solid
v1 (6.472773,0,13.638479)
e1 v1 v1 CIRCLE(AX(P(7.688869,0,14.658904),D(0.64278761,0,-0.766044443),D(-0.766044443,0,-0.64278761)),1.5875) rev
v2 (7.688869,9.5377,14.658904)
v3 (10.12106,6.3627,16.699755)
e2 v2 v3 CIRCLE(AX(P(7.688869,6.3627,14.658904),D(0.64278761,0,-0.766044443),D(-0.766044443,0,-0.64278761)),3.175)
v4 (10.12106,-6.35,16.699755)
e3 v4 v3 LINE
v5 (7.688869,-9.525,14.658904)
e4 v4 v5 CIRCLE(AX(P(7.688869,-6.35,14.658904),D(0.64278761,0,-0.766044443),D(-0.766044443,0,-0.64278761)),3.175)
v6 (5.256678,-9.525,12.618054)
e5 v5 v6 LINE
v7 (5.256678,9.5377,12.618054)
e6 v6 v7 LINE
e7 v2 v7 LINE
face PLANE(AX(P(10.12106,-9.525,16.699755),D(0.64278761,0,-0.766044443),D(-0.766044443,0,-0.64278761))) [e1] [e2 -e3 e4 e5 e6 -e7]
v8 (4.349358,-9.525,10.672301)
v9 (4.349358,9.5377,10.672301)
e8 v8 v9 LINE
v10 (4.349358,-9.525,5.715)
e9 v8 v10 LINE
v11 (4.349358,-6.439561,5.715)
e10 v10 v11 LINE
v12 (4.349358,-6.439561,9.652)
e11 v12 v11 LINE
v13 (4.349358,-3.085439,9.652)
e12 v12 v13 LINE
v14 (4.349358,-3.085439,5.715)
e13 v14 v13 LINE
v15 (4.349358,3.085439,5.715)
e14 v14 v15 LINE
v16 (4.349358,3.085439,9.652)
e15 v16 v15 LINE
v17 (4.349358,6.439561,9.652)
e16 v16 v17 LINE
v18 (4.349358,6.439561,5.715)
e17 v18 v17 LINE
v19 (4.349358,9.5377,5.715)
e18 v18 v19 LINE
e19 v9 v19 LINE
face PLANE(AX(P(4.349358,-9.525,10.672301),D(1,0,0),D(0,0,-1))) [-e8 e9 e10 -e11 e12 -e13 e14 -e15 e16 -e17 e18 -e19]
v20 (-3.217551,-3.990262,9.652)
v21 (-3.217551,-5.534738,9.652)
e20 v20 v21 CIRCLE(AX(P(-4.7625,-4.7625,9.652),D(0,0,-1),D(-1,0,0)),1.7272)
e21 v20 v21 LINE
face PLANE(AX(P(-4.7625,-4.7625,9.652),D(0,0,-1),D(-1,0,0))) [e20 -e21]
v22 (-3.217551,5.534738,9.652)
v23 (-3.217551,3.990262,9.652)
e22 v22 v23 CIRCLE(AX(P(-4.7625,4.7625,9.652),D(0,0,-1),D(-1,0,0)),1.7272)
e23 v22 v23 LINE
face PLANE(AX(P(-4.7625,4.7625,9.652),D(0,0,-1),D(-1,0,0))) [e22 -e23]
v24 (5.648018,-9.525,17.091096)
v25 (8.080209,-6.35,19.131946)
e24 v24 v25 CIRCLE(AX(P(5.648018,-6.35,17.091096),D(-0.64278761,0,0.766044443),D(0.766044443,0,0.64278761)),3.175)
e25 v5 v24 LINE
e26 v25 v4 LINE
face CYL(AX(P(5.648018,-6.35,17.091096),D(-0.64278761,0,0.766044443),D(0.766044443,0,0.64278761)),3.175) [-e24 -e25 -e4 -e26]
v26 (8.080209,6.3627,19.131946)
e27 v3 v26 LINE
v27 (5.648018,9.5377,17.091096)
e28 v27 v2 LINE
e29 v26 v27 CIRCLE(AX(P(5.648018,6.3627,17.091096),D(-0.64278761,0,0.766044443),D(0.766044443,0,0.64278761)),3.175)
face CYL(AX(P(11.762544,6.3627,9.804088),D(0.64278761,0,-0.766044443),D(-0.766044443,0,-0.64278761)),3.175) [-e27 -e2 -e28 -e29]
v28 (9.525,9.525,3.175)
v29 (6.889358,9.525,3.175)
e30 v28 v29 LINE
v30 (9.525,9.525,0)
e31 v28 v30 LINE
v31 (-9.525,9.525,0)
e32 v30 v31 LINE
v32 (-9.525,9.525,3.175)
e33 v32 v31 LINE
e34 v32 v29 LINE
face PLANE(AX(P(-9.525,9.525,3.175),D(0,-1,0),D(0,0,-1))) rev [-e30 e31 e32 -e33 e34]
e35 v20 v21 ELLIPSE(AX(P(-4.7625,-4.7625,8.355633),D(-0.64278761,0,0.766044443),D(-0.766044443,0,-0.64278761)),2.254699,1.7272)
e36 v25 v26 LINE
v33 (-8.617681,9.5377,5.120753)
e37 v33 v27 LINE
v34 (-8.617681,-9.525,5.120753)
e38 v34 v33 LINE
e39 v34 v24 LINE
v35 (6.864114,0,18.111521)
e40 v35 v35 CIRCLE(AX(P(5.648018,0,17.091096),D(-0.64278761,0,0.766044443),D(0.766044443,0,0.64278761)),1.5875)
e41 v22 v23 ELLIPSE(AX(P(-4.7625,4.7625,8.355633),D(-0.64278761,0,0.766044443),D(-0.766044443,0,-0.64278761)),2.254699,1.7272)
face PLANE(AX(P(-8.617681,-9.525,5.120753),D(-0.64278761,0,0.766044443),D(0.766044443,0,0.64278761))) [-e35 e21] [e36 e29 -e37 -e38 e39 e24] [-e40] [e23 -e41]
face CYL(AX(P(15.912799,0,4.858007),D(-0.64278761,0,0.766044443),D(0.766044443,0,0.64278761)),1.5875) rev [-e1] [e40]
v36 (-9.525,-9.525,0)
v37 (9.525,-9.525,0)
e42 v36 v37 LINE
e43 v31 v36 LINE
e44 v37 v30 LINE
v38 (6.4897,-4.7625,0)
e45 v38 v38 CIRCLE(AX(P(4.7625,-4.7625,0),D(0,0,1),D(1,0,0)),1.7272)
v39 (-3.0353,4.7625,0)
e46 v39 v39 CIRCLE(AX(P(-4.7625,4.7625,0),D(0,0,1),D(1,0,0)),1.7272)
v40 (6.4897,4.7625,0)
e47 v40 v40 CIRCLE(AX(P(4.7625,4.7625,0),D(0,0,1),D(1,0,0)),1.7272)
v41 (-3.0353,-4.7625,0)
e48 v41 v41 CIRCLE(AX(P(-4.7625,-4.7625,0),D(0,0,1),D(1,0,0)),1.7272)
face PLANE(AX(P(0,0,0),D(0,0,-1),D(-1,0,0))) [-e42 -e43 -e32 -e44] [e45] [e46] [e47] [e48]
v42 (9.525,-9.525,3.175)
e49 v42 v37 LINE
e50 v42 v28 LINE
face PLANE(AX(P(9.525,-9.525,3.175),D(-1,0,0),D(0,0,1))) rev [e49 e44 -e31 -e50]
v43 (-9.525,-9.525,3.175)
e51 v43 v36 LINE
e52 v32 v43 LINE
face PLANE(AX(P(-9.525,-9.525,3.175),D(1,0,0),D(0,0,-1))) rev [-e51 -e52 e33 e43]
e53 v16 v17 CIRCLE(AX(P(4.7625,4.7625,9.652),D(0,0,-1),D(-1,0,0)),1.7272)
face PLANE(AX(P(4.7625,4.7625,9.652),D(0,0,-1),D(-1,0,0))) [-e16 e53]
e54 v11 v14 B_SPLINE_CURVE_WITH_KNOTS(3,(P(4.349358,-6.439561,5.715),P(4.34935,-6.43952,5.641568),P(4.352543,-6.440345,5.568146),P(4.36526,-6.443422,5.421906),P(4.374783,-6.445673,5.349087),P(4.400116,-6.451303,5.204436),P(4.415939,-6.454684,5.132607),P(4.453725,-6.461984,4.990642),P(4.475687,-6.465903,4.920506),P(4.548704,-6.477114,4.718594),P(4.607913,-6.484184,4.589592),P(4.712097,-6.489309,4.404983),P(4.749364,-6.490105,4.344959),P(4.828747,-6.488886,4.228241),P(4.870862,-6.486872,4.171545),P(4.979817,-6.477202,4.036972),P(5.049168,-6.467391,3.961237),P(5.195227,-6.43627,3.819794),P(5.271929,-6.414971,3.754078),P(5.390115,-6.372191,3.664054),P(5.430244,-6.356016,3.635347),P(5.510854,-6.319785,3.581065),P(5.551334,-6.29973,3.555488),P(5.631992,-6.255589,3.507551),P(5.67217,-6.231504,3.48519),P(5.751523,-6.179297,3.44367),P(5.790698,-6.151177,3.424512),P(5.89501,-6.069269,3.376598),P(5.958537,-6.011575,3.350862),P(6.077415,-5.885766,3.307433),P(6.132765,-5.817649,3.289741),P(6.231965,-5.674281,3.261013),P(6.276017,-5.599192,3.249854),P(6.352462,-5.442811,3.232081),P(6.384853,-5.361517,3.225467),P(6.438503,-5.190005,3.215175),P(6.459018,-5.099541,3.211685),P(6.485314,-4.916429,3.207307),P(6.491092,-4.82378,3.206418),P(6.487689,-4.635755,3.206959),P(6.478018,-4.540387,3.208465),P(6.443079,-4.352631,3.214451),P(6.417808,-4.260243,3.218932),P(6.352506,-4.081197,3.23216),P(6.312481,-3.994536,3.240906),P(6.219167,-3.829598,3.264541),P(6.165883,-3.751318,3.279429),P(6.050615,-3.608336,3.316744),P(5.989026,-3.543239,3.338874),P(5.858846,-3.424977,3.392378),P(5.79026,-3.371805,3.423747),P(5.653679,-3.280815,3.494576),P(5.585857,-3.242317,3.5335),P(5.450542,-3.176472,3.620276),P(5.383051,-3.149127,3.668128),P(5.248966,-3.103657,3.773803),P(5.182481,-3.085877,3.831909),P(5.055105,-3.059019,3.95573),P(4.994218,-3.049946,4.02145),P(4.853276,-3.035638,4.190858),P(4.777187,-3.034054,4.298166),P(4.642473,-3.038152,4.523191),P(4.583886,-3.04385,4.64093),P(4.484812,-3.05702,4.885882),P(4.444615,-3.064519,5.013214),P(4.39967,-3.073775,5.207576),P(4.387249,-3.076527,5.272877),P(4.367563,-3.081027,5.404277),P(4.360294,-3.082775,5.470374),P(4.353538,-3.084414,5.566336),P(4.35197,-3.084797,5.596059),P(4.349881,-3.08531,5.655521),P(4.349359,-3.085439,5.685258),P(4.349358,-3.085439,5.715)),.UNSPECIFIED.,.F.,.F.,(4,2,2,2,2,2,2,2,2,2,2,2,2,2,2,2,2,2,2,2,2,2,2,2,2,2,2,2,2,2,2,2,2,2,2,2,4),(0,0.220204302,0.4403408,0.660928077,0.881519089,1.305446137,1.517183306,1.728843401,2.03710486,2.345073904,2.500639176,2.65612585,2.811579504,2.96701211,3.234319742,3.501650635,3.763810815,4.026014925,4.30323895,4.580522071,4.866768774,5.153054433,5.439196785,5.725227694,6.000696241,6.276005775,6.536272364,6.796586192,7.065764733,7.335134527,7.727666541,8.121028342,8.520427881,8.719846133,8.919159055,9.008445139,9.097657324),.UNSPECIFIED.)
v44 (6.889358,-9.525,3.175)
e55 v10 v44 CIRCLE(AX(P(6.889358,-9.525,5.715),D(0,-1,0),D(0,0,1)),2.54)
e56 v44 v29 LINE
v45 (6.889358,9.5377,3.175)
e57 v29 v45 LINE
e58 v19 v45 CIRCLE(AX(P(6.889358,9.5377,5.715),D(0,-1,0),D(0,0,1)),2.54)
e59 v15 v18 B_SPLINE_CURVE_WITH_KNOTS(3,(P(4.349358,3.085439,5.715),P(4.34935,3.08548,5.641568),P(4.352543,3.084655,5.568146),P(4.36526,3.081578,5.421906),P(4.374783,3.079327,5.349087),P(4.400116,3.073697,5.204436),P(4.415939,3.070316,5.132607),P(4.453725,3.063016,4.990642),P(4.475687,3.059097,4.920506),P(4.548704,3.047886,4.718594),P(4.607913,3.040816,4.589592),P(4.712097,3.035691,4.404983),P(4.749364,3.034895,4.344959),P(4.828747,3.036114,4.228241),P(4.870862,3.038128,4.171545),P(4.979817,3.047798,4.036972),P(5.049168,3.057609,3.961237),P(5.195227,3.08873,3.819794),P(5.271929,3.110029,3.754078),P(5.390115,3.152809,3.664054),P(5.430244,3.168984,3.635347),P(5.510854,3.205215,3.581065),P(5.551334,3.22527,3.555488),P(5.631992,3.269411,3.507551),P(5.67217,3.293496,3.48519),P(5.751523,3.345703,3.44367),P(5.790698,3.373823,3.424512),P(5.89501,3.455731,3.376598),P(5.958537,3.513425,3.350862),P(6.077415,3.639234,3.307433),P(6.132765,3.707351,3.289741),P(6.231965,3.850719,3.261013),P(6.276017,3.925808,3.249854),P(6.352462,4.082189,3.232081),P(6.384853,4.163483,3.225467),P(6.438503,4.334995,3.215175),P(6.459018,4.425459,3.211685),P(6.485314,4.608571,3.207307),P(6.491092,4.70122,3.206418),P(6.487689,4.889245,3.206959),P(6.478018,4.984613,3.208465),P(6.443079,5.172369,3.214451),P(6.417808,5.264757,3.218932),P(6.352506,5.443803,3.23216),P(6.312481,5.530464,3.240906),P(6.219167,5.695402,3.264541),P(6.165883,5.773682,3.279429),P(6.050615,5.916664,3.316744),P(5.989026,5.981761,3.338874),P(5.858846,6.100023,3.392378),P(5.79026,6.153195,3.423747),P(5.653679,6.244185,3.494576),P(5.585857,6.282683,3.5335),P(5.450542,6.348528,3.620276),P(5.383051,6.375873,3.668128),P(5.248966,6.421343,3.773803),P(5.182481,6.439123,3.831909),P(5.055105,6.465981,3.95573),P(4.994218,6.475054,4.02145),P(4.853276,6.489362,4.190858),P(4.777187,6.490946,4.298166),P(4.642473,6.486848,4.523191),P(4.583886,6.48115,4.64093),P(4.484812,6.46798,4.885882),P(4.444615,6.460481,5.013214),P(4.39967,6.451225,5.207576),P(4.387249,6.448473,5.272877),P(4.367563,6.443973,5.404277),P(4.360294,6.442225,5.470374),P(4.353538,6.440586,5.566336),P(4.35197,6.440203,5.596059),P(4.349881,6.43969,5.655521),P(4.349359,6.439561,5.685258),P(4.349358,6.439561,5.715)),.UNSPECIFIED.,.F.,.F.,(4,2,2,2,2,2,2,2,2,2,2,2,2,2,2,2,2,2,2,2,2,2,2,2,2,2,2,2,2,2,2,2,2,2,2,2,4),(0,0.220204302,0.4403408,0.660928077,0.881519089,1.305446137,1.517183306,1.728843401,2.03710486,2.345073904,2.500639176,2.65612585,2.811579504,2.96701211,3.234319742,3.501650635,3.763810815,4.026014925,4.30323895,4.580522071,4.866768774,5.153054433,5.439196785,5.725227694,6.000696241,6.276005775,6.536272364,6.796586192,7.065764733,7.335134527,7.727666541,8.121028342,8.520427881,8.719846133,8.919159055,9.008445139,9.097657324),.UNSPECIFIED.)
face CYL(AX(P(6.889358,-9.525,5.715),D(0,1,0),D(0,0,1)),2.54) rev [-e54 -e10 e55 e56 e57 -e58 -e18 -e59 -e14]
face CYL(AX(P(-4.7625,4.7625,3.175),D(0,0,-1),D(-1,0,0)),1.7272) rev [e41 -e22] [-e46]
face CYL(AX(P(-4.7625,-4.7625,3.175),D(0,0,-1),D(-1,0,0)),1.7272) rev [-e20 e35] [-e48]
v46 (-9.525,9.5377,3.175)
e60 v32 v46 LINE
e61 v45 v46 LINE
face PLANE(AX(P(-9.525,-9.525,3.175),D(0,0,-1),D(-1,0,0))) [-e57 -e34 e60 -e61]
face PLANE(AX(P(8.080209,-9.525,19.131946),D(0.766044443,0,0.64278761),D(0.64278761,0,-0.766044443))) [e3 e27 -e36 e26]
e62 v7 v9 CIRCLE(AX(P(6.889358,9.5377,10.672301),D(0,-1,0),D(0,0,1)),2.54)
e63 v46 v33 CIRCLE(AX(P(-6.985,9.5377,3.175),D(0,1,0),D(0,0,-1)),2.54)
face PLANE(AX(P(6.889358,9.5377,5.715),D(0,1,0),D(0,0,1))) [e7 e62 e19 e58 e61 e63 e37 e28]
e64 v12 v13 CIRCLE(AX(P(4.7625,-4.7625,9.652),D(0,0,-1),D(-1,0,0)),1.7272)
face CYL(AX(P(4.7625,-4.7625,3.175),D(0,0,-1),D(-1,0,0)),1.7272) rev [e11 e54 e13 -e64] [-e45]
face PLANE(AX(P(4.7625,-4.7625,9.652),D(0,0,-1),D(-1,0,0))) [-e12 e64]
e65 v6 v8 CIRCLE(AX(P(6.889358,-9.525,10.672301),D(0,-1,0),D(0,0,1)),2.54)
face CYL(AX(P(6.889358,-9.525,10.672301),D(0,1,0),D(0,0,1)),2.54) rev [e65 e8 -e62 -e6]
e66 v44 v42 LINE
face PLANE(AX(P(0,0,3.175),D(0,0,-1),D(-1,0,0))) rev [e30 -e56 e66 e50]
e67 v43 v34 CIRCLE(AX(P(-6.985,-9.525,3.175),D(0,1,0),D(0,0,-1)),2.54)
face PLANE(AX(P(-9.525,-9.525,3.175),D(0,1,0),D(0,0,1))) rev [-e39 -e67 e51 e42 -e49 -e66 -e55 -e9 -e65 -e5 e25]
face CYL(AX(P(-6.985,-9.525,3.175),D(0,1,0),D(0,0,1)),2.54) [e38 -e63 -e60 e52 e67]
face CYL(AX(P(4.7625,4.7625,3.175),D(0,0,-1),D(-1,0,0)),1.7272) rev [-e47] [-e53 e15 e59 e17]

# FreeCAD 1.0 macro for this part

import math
import FreeCAD as App
import Part
import Sketcher

V = App.Vector
Q = App.Units.Quantity


def edges_at(feature, points):
    """Names of the edges that pass closest to the given points."""
    edges = feature.Shape.Edges
    near = lambda p: min(range(len(edges)), key=lambda i: edges[i].distToShape(Part.Vertex(*p))[0])
    return sorted({f"Edge{near(p) + 1}" for p in points})


def add_polygon(sketch, points):
    """Adds a closed chain of lines whose ends are joined by coincident constraints."""
    first, n = sketch.GeometryCount, len(points)
    for a, b in zip(points, points[1:] + points[:1]):
        sketch.addGeometry(Part.LineSegment(App.Vector(*a, 0), App.Vector(*b, 0)), False)
    for i in range(n):
        sketch.addConstraint(Sketcher.Constraint("Coincident", first + i, 2, first + (i + 1) % n, 1))

doc = App.newDocument("Part")
body = doc.addObject("PartDesign::Body", "Body")

# Sketch on XY plane
sketch1 = body.newObject("Sketcher::SketchObject", "Sketch")
sketch1.AttachmentSupport = (doc.getObject("XY_Plane"), [""])
sketch1.MapMode = "FlatFace"
add_polygon(sketch1, [(-9.5, 9.5), (-9.5, -9.5), (9.5, -9.5), (9.5, 9.5)])  # lines 0-3
sketch1.addGeometry(Part.Circle(V(-4.8, -4.8, 0), V(0, 0, 1), 1.7), False)  # 4
sketch1.addGeometry(Part.Circle(V(4.8, -4.8, 0), V(0, 0, 1), 1.7), False)  # 5
sketch1.addGeometry(Part.Circle(V(-4.8, 4.8, 0), V(0, 0, 1), 1.7), False)  # 6
sketch1.addGeometry(Part.Circle(V(4.8, 4.8, 0), V(0, 0, 1), 1.7), False)  # 7
sketch1.addConstraint([
    Sketcher.Constraint("Vertical", 0),
    Sketcher.Constraint("Horizontal", 1),
    Sketcher.Constraint("Vertical", 2),
    Sketcher.Constraint("Horizontal", 3),
    Sketcher.Constraint("Equal", 4, 5),
    Sketcher.Constraint("Equal", 5, 6),
    Sketcher.Constraint("Equal", 6, 7),
    Sketcher.Constraint("Symmetric", 5, 3, 6, 3, -1, 1),
    Sketcher.Constraint("Symmetric", 4, 3, 7, 3, -1, 1),
    Sketcher.Constraint("Symmetric", 0, 2, 2, 2, -1, 1),
    Sketcher.Constraint("Symmetric", 4, 3, 5, 3, -2),
    Sketcher.Constraint("Equal", 3, 0),
    Sketcher.Constraint("Diameter", 4, Q("0.136 in")),
    Sketcher.Constraint("DistanceX", 1, 1, 1, 2, Q("0.75 in")),
    Sketcher.Constraint("DistanceX", 4, 3, -1, 1, Q("0.1875 in")),
    Sketcher.Constraint("DistanceY", 4, 3, -1, 1, Q("0.1875 in")),
])
pad1 = body.newObject("PartDesign::Pad", "Pad")
pad1.Profile = sketch1
pad1.Length = Q("0.125 in")

# Sketch on XZ plane
sketch2 = body.newObject("Sketcher::SketchObject", "Sketch001")
sketch2.AttachmentSupport = (doc.getObject("XZ_Plane"), [""])
sketch2.MapMode = "FlatFace"
sketch2.addGeometry([
    Part.LineSegment(V(4.3, 10.7, 0), V(4.3, 5.7, 0)),  # 0
    Part.ArcOfCircle(Part.Circle(V(6.9, 5.7, 0), V(0, 0, 1), 2.5), math.radians(-180), math.radians(-90)),  # 1
    Part.LineSegment(V(6.9, 3.2, 0), V(-9.5, 3.2, 0)),  # 2
    Part.ArcOfCircle(Part.Circle(V(-7, 3.2, 0), V(0, 0, 1), 2.5), math.radians(130), math.radians(180)),  # 3
    Part.LineSegment(V(-8.6, 5.1, 0), V(8.1, 19.1, 0)),  # 4
    Part.LineSegment(V(8.1, 19.1, 0), V(10.1, 16.7, 0)),  # 5
    Part.LineSegment(V(10.1, 16.7, 0), V(5.3, 12.6, 0)),  # 6
    Part.ArcOfCircle(Part.Circle(V(6.9, 10.7, 0), V(0, 0, 1), 2.5), math.radians(130), math.radians(180)),  # 7
], False)
sketch2.addConstraint([
    Sketcher.Constraint("Tangent", 0, 2, 1, 1),
    Sketcher.Constraint("Tangent", 1, 2, 2, 1),
    Sketcher.Constraint("Coincident", 2, 2, 3, 2),
    Sketcher.Constraint("Tangent", 3, 1, 4, 1),
    Sketcher.Constraint("Coincident", 4, 2, 5, 1),
    Sketcher.Constraint("Coincident", 5, 2, 6, 1),
    Sketcher.Constraint("Tangent", 6, 2, 7, 1),
    Sketcher.Constraint("Tangent", 7, 2, 0, 1),
    Sketcher.Constraint("Vertical", 0),
    Sketcher.Constraint("Horizontal", 2),
    Sketcher.Constraint("Equal", 1, 3),
    Sketcher.Constraint("Equal", 3, 7),
    Sketcher.Constraint("Perpendicular", 4, 5),
    Sketcher.Constraint("Perpendicular", 5, 6),
    Sketcher.Constraint("Horizontal", 3, 3, 1, 2),
    Sketcher.Constraint("Radius", 1, Q("0.1 in")),
    Sketcher.Constraint("Angle", 4, Q("40 deg")),
    Sketcher.Constraint("Distance", 6, Q("0.25 in")),
    Sketcher.Constraint("Distance", 5, Q("0.125 in")),
    Sketcher.Constraint("DistanceY", -1, 1, 1, 3, Q("0.225 in")),
    Sketcher.Constraint("DistanceX", 3, 3, -1, 1, Q("0.275 in")),
    Sketcher.Constraint("DistanceY", 0, 2, 0, 1, Q("4.957301 mm")),
])
pad2 = body.newObject("PartDesign::Pad", "Pad001")
pad2.Profile = sketch2
pad2.Type = "TwoLengths"
pad2.Length = Q("0.3755 in")
pad2.Length2 = Q("0.375 in")
pad2.Reversed = True
doc.recompute()

fillet = body.newObject("PartDesign::Fillet", "Fillet")
fillet.Base = (pad2, edges_at(pad2, [(9.101, -9.525, 17.916), (9.101, 9.538, 17.916)]))
fillet.Radius = Q("0.125 in")

# Sketch on an angled plane
sketch3 = body.newObject("Sketcher::SketchObject", "Sketch002")
sketch3.Placement = App.Placement(V(-6.082097, 0, 7.24836), App.Rotation(V(0.766044443, 0, 0.64278761), V(0, 1, 0), V(-0.64278761, 0, 0.766044443), "ZXY"))
sketch3.addGeometry(Part.Circle(V(15.3, 0, 0), V(0, 0, 1), 1.6), False)
sketch3.addConstraint([
    Sketcher.Constraint("PointOnObject", 0, 3, -1),
    Sketcher.Constraint("Diameter", 0, Q("0.125 in")),
    Sketcher.Constraint("DistanceX", -1, 1, 0, 3, Q("15.312578 mm")),
])
pocket1 = body.newObject("PartDesign::Pocket", "Pocket")
pocket1.Profile = sketch3
pocket1.Type = "UpToFirst"

# Sketch on XY plane
sketch4 = body.newObject("Sketcher::SketchObject", "Sketch003")
sketch4.AttachmentSupport = (doc.getObject("XY_Plane"), [""])
sketch4.MapMode = "FlatFace"
sketch4.AttachmentOffset = App.Placement(V(0, 0, 0.125 * 25.4), App.Rotation())
sketch4.addGeometry([
    Part.Circle(V(-4.8, -4.8, 0), V(0, 0, 1), 1.7),
    Part.Circle(V(-4.8, 4.8, 0), V(0, 0, 1), 1.7),
    Part.Circle(V(4.8, -4.8, 0), V(0, 0, 1), 1.7),
    Part.Circle(V(4.8, 4.8, 0), V(0, 0, 1), 1.7),
], False)
sketch4.addConstraint([
    Sketcher.Constraint("Equal", 0, 1),
    Sketcher.Constraint("Equal", 1, 2),
    Sketcher.Constraint("Equal", 2, 3),
    Sketcher.Constraint("Symmetric", 1, 3, 2, 3, -1, 1),
    Sketcher.Constraint("Symmetric", 0, 3, 3, 3, -1, 1),
    Sketcher.Constraint("Symmetric", 0, 3, 2, 3, -2),
    Sketcher.Constraint("Diameter", 0, Q("0.136 in")),
    Sketcher.Constraint("DistanceX", 0, 3, -1, 1, Q("0.1875 in")),
    Sketcher.Constraint("DistanceY", 0, 3, -1, 1, Q("0.1875 in")),
])
pocket2 = body.newObject("PartDesign::Pocket", "Pocket001")
pocket2.Profile = sketch4
pocket2.Length = Q("0.255 in")
pocket2.Reversed = True

doc.recompute()
